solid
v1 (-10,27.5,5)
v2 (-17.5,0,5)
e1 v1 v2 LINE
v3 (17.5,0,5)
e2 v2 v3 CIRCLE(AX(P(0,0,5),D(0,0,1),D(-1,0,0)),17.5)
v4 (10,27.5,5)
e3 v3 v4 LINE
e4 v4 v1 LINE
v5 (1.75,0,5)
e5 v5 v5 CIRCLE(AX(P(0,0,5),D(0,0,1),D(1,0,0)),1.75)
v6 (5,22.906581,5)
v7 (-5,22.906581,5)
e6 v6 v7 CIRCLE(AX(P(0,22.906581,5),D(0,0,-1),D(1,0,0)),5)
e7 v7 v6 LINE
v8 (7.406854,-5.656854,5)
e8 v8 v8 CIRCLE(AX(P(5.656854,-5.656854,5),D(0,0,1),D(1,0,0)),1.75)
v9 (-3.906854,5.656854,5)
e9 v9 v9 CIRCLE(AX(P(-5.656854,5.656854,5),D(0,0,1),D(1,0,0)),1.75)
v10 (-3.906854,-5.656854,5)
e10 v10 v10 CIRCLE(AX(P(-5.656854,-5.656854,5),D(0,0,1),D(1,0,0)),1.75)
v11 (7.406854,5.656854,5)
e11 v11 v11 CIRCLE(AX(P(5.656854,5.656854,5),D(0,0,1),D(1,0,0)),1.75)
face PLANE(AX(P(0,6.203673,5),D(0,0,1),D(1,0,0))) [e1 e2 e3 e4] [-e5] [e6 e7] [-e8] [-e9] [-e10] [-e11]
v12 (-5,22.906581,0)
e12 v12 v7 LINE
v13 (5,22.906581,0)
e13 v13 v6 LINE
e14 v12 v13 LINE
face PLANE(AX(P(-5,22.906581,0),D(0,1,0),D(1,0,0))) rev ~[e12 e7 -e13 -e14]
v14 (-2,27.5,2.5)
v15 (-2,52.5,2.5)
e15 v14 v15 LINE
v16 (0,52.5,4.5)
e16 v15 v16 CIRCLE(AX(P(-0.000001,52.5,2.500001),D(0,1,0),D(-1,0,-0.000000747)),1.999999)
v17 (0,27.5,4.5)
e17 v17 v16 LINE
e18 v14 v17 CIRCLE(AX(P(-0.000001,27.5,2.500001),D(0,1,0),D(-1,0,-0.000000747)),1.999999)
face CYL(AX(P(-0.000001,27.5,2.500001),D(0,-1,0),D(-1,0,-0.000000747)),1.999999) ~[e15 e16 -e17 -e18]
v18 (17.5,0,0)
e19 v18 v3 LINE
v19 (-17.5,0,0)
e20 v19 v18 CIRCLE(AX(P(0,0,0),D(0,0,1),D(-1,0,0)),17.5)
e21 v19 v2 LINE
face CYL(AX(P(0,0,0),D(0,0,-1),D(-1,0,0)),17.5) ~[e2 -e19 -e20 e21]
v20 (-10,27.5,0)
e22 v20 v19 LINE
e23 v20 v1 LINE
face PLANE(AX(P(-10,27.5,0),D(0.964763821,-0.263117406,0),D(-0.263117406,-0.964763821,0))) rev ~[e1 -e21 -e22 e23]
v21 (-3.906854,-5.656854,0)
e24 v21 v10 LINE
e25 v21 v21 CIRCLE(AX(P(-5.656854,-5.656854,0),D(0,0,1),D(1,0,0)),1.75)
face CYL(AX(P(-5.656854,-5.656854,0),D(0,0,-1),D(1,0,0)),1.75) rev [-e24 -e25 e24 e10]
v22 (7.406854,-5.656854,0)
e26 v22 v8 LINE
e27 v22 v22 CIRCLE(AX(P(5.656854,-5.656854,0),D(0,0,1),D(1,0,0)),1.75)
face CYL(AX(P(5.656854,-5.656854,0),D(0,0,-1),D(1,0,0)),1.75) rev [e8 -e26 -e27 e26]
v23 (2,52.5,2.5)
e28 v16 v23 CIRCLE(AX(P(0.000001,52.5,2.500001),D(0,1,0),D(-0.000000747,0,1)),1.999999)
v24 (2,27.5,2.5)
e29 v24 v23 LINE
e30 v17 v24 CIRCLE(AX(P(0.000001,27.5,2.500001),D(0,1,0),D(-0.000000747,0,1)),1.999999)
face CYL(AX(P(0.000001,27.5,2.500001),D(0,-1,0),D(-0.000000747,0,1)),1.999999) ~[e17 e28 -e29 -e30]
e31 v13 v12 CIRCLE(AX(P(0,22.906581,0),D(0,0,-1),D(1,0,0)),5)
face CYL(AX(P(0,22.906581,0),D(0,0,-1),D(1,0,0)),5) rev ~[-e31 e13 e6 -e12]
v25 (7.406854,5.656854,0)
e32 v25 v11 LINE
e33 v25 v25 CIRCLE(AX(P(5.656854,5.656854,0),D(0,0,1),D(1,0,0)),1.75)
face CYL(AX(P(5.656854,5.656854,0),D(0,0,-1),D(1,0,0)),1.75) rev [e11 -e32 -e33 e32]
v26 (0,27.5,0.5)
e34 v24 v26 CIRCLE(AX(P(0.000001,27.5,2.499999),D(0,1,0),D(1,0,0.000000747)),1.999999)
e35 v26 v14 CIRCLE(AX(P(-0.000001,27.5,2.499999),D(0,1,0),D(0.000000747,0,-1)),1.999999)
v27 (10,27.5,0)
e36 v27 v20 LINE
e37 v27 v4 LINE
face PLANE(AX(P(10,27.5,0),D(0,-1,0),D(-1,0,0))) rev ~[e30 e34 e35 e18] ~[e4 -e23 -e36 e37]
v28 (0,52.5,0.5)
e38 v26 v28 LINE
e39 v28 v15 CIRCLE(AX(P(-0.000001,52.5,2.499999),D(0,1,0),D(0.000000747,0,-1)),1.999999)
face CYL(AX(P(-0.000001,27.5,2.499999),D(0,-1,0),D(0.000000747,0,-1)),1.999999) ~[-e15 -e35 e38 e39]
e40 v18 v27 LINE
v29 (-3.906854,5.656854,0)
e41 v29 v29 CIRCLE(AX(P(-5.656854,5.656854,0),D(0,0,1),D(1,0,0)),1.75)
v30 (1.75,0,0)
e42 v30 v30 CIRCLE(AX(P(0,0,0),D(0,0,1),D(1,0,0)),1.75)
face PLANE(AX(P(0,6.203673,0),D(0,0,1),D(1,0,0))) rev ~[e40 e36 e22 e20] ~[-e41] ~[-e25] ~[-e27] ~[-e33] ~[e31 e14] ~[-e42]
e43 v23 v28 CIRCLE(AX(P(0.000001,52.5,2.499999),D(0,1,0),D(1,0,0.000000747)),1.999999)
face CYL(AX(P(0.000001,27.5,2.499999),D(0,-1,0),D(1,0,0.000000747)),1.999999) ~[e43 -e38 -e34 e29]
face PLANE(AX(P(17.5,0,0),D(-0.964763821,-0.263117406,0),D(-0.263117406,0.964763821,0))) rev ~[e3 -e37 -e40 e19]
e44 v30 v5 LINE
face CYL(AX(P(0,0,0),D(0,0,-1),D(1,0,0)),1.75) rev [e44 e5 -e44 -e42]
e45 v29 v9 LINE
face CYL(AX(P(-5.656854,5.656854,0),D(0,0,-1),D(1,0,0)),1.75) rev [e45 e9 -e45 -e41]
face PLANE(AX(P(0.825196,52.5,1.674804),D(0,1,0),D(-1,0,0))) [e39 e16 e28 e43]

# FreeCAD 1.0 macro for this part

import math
import FreeCAD as App
import Part
import Sketcher
from FreeCAD import Vector

doc = App.newDocument("Part")
body = doc.addObject("PartDesign::Body", "Body")

# Sketch on XY plane
sketch1 = body.newObject("Sketcher::SketchObject", "Sketch")
sketch1.AttachmentSupport = (doc.getObject("XY_Plane"), [""])
sketch1.MapMode = "FlatFace"
sketch1.addGeometry(Part.LineSegment(Vector(-10, 27.5, 0), Vector(-17.5, 0, 0)), False)
sketch1.addGeometry(Part.ArcOfCircle(Part.Circle(Vector(0, 0, 0), Vector(0, 0, 1), 17.5), math.radians(180), math.radians(360)), False)
sketch1.addGeometry(Part.LineSegment(Vector(17.5, 0, 0), Vector(10, 27.5, 0)), False)
sketch1.addGeometry(Part.LineSegment(Vector(10, 27.5, 0), Vector(-10, 27.5, 0)), False)
sketch1.addGeometry(Part.Circle(Vector(-5.7, -5.7, 0), Vector(0, 0, 1), 1.8), False)
sketch1.addGeometry(Part.Circle(Vector(-5.7, 5.7, 0), Vector(0, 0, 1), 1.8), False)
sketch1.addGeometry(Part.Circle(Vector(0, 0, 0), Vector(0, 0, 1), 1.8), False)
sketch1.addGeometry(Part.Circle(Vector(5.7, -5.7, 0), Vector(0, 0, 1), 1.8), False)
sketch1.addGeometry(Part.Circle(Vector(5.7, 5.7, 0), Vector(0, 0, 1), 1.8), False)
sketch1.addGeometry(Part.ArcOfCircle(Part.Circle(Vector(0, 22.9, 0), Vector(0, 0, 1), 5), math.radians(180), math.radians(360)), False)
sketch1.addGeometry(Part.LineSegment(Vector(-5, 22.9, 0), Vector(5, 22.9, 0)), False)
sketch1.addConstraint(Sketcher.Constraint("Coincident", 0, 2, 1, 1))
sketch1.addConstraint(Sketcher.Constraint("Coincident", 1, 2, 2, 1))
sketch1.addConstraint(Sketcher.Constraint("Coincident", 2, 2, 3, 1))
sketch1.addConstraint(Sketcher.Constraint("Coincident", 3, 2, 0, 1))
sketch1.addConstraint(Sketcher.Constraint("Coincident", 9, 1, 10, 1))
sketch1.addConstraint(Sketcher.Constraint("Coincident", 10, 2, 9, 2))
sketch1.addConstraint(Sketcher.Constraint("Horizontal", 3))
sketch1.addConstraint(Sketcher.Constraint("Horizontal", 10))
sketch1.addConstraint(Sketcher.Constraint("Coincident", 1, 3, -1, 1))
sketch1.addConstraint(Sketcher.Constraint("Coincident", 6, 3, -1, 1))
sketch1.addConstraint(Sketcher.Constraint("Equal", 4, 5))
sketch1.addConstraint(Sketcher.Constraint("Equal", 5, 6))
sketch1.addConstraint(Sketcher.Constraint("Equal", 6, 7))
sketch1.addConstraint(Sketcher.Constraint("Equal", 7, 8))
sketch1.addConstraint(Sketcher.Constraint("Symmetric", 5, 3, 7, 3, -1, 1))
sketch1.addConstraint(Sketcher.Constraint("Symmetric", 4, 3, 8, 3, -1, 1))
sketch1.addConstraint(Sketcher.Constraint("Symmetric", 4, 3, 7, 3, -2))
sketch1.addConstraint(Sketcher.Constraint("PointOnObject", 9, 3, -2))
sketch1.addConstraint(Sketcher.Constraint("PointOnObject", 0, 2, -1))
sketch1.addConstraint(Sketcher.Constraint("PointOnObject", 1, 2, -1))
sketch1.addConstraint(Sketcher.Constraint("Equal", 0, 2))
sketch1.addConstraint(Sketcher.Constraint("Radius", 9, 5.0))
sketch1.addConstraint(Sketcher.Constraint("Diameter", 4, 3.5))
sketch1.addConstraint(Sketcher.Constraint("Radius", 1, 17.5))
sketch1.addConstraint(Sketcher.Constraint("DistanceX", 3, 2, 3, 1, 20.0))
sketch1.addConstraint(Sketcher.Constraint("DistanceY", -1, 1, 2, 2, 27.5))
sketch1.addConstraint(Sketcher.Constraint("DistanceY", -1, 1, 9, 3, 22.906581))
sketch1.addConstraint(Sketcher.Constraint("DistanceY", -1, 1, 9, 1, 22.906581))
sketch1.addConstraint(Sketcher.Constraint("DistanceX", 4, 3, -1, 1, 5.656854))
sketch1.addConstraint(Sketcher.Constraint("DistanceY", 4, 3, -1, 1, 5.656854))
pad1 = body.newObject("PartDesign::Pad", "Pad")
pad1.Profile = sketch1
pad1.Length = 5

# Sketch on XZ plane
sketch2 = body.newObject("Sketcher::SketchObject", "Sketch001")
sketch2.AttachmentSupport = (doc.getObject("XZ_Plane"), [""])
sketch2.MapMode = "FlatFace"
sketch2.AttachmentOffset = App.Placement(Vector(0, 0, -27.5), App.Rotation())
sketch2.addGeometry(Part.ArcOfCircle(Part.Circle(Vector(0, 2.5, 0), Vector(0, 0, 1), 2), math.radians(-90), math.radians(0)), False)
sketch2.addGeometry(Part.ArcOfCircle(Part.Circle(Vector(0, 2.5, 0), Vector(0, 0, 1), 2), math.radians(180), math.radians(270)), False)
sketch2.addGeometry(Part.ArcOfCircle(Part.Circle(Vector(0, 2.5, 0), Vector(0, 0, 1), 2), math.radians(90), math.radians(180)), False)
sketch2.addGeometry(Part.ArcOfCircle(Part.Circle(Vector(0, 2.5, 0), Vector(0, 0, 1), 2), math.radians(0), math.radians(90)), False)
sketch2.addConstraint(Sketcher.Constraint("Tangent", 0, 1, 1, 2))
sketch2.addConstraint(Sketcher.Constraint("Tangent", 1, 1, 2, 2))
sketch2.addConstraint(Sketcher.Constraint("Tangent", 2, 1, 3, 2))
sketch2.addConstraint(Sketcher.Constraint("Tangent", 3, 1, 0, 2))
sketch2.addConstraint(Sketcher.Constraint("Equal", 0, 1))
sketch2.addConstraint(Sketcher.Constraint("Symmetric", 1, 1, 3, 1, -2))
sketch2.addConstraint(Sketcher.Constraint("PointOnObject", 0, 1, -2))
sketch2.addConstraint(Sketcher.Constraint("PointOnObject", 2, 1, -2))
sketch2.addConstraint(Sketcher.Constraint("Horizontal", 3, 3, 1, 1))
sketch2.addConstraint(Sketcher.Constraint("Radius", 0, 1.999999))
sketch2.addConstraint(Sketcher.Constraint("DistanceY", -1, 1, 0, 3, 2.499999))
pad2 = body.newObject("PartDesign::Pad", "Pad001")
pad2.Profile = sketch2
pad2.Length = 25
pad2.Reversed = True

doc.recompute()
